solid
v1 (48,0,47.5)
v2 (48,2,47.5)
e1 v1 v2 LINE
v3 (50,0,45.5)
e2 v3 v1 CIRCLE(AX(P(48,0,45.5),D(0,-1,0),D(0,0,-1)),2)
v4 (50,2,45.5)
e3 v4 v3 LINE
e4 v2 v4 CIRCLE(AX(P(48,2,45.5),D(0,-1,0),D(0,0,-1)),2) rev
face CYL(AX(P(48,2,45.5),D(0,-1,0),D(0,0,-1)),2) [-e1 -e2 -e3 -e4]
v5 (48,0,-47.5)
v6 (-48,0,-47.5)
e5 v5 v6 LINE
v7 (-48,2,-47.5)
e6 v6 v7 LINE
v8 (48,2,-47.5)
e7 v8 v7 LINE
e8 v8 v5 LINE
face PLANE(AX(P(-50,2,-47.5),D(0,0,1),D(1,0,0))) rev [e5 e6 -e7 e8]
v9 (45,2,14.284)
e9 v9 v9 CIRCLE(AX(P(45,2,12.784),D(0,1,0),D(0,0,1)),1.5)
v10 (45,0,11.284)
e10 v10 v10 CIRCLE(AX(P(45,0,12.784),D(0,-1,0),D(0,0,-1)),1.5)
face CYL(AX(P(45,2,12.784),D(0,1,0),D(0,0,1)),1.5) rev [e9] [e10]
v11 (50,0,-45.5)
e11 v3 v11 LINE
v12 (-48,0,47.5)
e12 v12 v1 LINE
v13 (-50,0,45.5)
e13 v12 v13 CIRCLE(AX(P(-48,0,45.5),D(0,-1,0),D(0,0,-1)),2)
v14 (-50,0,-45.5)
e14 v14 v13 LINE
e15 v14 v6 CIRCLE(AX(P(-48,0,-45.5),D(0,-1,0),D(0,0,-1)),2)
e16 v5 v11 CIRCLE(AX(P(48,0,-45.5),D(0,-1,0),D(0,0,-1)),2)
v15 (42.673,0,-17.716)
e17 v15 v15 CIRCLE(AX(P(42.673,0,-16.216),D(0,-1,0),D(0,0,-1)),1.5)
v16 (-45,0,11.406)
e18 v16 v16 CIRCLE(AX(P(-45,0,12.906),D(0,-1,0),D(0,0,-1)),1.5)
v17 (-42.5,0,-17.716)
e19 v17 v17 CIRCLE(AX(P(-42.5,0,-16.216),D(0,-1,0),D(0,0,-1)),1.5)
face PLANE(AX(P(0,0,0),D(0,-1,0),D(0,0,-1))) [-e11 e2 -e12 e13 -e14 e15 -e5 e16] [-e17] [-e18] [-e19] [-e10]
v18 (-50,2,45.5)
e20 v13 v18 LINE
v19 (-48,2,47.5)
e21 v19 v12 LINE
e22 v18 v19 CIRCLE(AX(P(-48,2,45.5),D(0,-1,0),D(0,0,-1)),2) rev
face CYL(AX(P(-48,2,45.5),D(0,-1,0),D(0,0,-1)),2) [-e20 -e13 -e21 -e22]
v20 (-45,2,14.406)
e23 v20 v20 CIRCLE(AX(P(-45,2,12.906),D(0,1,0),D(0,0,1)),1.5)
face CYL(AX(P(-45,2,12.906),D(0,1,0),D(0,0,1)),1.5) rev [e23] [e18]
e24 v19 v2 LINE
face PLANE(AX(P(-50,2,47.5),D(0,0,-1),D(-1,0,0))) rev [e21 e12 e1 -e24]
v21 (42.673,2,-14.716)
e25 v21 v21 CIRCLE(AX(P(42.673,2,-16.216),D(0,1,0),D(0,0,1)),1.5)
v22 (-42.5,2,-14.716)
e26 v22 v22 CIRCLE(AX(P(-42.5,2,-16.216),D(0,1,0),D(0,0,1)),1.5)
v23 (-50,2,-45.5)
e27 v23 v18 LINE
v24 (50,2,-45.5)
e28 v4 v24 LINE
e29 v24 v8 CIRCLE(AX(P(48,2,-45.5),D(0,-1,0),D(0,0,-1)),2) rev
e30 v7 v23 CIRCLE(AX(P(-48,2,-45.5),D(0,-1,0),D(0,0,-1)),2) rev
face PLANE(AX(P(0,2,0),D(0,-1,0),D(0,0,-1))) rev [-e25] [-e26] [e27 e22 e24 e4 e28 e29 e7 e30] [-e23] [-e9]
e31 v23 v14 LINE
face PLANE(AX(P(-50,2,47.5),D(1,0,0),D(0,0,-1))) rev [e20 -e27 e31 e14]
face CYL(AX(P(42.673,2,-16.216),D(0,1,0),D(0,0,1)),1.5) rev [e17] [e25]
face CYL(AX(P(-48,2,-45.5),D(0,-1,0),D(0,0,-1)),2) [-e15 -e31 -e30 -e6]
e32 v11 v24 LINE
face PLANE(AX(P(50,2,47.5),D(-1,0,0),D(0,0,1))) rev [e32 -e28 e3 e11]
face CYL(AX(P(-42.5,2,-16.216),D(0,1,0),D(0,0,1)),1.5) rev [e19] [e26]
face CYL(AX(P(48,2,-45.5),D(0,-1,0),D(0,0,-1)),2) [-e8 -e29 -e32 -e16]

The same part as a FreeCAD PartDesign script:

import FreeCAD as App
import Part
import Sketcher
from FreeCAD import Vector


def edges_at(feature, points):
    """Names of the edges that pass closest to the given points."""
    edges = feature.Shape.Edges
    near = lambda p: min(range(len(edges)), key=lambda i: edges[i].distToShape(Part.Vertex(*p))[0])
    return sorted({f"Edge{near(p) + 1}" for p in points})

doc = App.newDocument("Part")
params = doc.addObject("Spreadsheet::Sheet", "Params")
for row, (alias, value) in enumerate([
    ("sketch1_width", "100 mm"),
    ("sketch1_height", "95 mm"),
    ("pad1_length", "2 mm"),
    ("sketch2_diameter", "3 mm"),
    ("hole_diameter", "3 mm"),
    ("fillet_radius", "2 mm"),
], start=1):
    params.set(f"A{row}", alias)
    params.set(f"B{row}", "=" + value)
    params.setAlias(f"B{row}", alias)

body = doc.addObject("PartDesign::Body", "Body")

# Sketch on XZ plane
sketch1 = body.newObject("Sketcher::SketchObject", "Sketch")
sketch1.AttachmentSupport = (doc.getObject("XZ_Plane"), [""])
sketch1.MapMode = "FlatFace"
sketch1.addGeometry(Part.LineSegment(Vector(-50, -48, 0), Vector(-50, 48, 0)), False)
sketch1.addGeometry(Part.LineSegment(Vector(-50, 48, 0), Vector(50, 48, 0)), False)
sketch1.addGeometry(Part.LineSegment(Vector(50, 48, 0), Vector(50, -48, 0)), False)
sketch1.addGeometry(Part.LineSegment(Vector(50, -48, 0), Vector(-50, -48, 0)), False)
sketch1.addConstraint(Sketcher.Constraint("Coincident", 0, 2, 1, 1))
sketch1.addConstraint(Sketcher.Constraint("Coincident", 1, 2, 2, 1))
sketch1.addConstraint(Sketcher.Constraint("Coincident", 2, 2, 3, 1))
sketch1.addConstraint(Sketcher.Constraint("Coincident", 3, 2, 0, 1))
sketch1.addConstraint(Sketcher.Constraint("Vertical", 0))
sketch1.addConstraint(Sketcher.Constraint("Horizontal", 1))
sketch1.addConstraint(Sketcher.Constraint("Vertical", 2))
sketch1.addConstraint(Sketcher.Constraint("Horizontal", 3))
sketch1.addConstraint(Sketcher.Constraint("Symmetric", 0, 2, 2, 2, -1, 1))
sketch1.addConstraint(Sketcher.Constraint("DistanceX", 1, 1, 1, 2, 100.0))
sketch1.addConstraint(Sketcher.Constraint("DistanceY", 0, 1, 0, 2, 95.0))
sketch1.setExpression("Constraints[9]", "Params.sketch1_width")
sketch1.setExpression("Constraints[10]", "Params.sketch1_height")
pad1 = body.newObject("PartDesign::Pad", "Pad")
pad1.Profile = sketch1
pad1.setExpression("Length", "Params.pad1_length")
pad1.Reversed = True

# Sketch on XZ plane
sketch2 = body.newObject("Sketcher::SketchObject", "Sketch001")
sketch2.AttachmentSupport = (doc.getObject("XZ_Plane"), [""])
sketch2.MapMode = "FlatFace"
sketch2.AttachmentOffset = App.Placement(Vector(0, 0, -2), App.Rotation())
sketch2.addGeometry(Part.Circle(Vector(-45, 12.9, 0), Vector(0, 0, 1), 1.5), False)
sketch2.addGeometry(Part.Circle(Vector(-42.5, -16.2, 0), Vector(0, 0, 1), 1.5), False)
sketch2.addGeometry(Part.Circle(Vector(42.7, -16.2, 0), Vector(0, 0, 1), 1.5), False)
sketch2.addGeometry(Part.Circle(Vector(45, 12.8, 0), Vector(0, 0, 1), 1.5), False)
sketch2.addConstraint(Sketcher.Constraint("Equal", 0, 1))
sketch2.addConstraint(Sketcher.Constraint("Equal", 1, 2))
sketch2.addConstraint(Sketcher.Constraint("Equal", 2, 3))
sketch2.addConstraint(Sketcher.Constraint("Horizontal", 1, 3, 2, 3))
sketch2.addConstraint(Sketcher.Constraint("Diameter", 0, 3.0))
sketch2.addConstraint(Sketcher.Constraint("DistanceX", 0, 3, -1, 1, 45.0))
sketch2.addConstraint(Sketcher.Constraint("DistanceX", -1, 1, 3, 3, 45.0))
sketch2.addConstraint(Sketcher.Constraint("DistanceY", 2, 3, 3, 3, 29.0))
sketch2.addConstraint(Sketcher.Constraint("DistanceX", 1, 3, -1, 1, 42.5))
sketch2.addConstraint(Sketcher.Constraint("DistanceY", -1, 1, 0, 3, 12.906))
sketch2.addConstraint(Sketcher.Constraint("DistanceY", 1, 3, -1, 1, 16.216))
sketch2.addConstraint(Sketcher.Constraint("DistanceX", -1, 1, 2, 3, 42.673))
sketch2.setExpression("Constraints[4]", "Params.sketch2_diameter")
doc.recompute()
hole = body.newObject("PartDesign::Hole", "Hole")
hole.Profile = sketch2
hole.ThreadType = "None"
hole.setExpression("Diameter", "Params.hole_diameter")
hole.DepthType = "ThroughAll"
hole.Reversed = True
doc.recompute()

fillet = body.newObject("PartDesign::Fillet", "Fillet")
fillet.Base = (hole, edges_at(hole, [
    (50, 1, 47.5),
    (-50, 1, 47.5),
    (-50, 1, -47.5),
    (50, 1, -47.5),
]))
fillet.setExpression("Radius", "Params.fillet_radius")

doc.recompute()
